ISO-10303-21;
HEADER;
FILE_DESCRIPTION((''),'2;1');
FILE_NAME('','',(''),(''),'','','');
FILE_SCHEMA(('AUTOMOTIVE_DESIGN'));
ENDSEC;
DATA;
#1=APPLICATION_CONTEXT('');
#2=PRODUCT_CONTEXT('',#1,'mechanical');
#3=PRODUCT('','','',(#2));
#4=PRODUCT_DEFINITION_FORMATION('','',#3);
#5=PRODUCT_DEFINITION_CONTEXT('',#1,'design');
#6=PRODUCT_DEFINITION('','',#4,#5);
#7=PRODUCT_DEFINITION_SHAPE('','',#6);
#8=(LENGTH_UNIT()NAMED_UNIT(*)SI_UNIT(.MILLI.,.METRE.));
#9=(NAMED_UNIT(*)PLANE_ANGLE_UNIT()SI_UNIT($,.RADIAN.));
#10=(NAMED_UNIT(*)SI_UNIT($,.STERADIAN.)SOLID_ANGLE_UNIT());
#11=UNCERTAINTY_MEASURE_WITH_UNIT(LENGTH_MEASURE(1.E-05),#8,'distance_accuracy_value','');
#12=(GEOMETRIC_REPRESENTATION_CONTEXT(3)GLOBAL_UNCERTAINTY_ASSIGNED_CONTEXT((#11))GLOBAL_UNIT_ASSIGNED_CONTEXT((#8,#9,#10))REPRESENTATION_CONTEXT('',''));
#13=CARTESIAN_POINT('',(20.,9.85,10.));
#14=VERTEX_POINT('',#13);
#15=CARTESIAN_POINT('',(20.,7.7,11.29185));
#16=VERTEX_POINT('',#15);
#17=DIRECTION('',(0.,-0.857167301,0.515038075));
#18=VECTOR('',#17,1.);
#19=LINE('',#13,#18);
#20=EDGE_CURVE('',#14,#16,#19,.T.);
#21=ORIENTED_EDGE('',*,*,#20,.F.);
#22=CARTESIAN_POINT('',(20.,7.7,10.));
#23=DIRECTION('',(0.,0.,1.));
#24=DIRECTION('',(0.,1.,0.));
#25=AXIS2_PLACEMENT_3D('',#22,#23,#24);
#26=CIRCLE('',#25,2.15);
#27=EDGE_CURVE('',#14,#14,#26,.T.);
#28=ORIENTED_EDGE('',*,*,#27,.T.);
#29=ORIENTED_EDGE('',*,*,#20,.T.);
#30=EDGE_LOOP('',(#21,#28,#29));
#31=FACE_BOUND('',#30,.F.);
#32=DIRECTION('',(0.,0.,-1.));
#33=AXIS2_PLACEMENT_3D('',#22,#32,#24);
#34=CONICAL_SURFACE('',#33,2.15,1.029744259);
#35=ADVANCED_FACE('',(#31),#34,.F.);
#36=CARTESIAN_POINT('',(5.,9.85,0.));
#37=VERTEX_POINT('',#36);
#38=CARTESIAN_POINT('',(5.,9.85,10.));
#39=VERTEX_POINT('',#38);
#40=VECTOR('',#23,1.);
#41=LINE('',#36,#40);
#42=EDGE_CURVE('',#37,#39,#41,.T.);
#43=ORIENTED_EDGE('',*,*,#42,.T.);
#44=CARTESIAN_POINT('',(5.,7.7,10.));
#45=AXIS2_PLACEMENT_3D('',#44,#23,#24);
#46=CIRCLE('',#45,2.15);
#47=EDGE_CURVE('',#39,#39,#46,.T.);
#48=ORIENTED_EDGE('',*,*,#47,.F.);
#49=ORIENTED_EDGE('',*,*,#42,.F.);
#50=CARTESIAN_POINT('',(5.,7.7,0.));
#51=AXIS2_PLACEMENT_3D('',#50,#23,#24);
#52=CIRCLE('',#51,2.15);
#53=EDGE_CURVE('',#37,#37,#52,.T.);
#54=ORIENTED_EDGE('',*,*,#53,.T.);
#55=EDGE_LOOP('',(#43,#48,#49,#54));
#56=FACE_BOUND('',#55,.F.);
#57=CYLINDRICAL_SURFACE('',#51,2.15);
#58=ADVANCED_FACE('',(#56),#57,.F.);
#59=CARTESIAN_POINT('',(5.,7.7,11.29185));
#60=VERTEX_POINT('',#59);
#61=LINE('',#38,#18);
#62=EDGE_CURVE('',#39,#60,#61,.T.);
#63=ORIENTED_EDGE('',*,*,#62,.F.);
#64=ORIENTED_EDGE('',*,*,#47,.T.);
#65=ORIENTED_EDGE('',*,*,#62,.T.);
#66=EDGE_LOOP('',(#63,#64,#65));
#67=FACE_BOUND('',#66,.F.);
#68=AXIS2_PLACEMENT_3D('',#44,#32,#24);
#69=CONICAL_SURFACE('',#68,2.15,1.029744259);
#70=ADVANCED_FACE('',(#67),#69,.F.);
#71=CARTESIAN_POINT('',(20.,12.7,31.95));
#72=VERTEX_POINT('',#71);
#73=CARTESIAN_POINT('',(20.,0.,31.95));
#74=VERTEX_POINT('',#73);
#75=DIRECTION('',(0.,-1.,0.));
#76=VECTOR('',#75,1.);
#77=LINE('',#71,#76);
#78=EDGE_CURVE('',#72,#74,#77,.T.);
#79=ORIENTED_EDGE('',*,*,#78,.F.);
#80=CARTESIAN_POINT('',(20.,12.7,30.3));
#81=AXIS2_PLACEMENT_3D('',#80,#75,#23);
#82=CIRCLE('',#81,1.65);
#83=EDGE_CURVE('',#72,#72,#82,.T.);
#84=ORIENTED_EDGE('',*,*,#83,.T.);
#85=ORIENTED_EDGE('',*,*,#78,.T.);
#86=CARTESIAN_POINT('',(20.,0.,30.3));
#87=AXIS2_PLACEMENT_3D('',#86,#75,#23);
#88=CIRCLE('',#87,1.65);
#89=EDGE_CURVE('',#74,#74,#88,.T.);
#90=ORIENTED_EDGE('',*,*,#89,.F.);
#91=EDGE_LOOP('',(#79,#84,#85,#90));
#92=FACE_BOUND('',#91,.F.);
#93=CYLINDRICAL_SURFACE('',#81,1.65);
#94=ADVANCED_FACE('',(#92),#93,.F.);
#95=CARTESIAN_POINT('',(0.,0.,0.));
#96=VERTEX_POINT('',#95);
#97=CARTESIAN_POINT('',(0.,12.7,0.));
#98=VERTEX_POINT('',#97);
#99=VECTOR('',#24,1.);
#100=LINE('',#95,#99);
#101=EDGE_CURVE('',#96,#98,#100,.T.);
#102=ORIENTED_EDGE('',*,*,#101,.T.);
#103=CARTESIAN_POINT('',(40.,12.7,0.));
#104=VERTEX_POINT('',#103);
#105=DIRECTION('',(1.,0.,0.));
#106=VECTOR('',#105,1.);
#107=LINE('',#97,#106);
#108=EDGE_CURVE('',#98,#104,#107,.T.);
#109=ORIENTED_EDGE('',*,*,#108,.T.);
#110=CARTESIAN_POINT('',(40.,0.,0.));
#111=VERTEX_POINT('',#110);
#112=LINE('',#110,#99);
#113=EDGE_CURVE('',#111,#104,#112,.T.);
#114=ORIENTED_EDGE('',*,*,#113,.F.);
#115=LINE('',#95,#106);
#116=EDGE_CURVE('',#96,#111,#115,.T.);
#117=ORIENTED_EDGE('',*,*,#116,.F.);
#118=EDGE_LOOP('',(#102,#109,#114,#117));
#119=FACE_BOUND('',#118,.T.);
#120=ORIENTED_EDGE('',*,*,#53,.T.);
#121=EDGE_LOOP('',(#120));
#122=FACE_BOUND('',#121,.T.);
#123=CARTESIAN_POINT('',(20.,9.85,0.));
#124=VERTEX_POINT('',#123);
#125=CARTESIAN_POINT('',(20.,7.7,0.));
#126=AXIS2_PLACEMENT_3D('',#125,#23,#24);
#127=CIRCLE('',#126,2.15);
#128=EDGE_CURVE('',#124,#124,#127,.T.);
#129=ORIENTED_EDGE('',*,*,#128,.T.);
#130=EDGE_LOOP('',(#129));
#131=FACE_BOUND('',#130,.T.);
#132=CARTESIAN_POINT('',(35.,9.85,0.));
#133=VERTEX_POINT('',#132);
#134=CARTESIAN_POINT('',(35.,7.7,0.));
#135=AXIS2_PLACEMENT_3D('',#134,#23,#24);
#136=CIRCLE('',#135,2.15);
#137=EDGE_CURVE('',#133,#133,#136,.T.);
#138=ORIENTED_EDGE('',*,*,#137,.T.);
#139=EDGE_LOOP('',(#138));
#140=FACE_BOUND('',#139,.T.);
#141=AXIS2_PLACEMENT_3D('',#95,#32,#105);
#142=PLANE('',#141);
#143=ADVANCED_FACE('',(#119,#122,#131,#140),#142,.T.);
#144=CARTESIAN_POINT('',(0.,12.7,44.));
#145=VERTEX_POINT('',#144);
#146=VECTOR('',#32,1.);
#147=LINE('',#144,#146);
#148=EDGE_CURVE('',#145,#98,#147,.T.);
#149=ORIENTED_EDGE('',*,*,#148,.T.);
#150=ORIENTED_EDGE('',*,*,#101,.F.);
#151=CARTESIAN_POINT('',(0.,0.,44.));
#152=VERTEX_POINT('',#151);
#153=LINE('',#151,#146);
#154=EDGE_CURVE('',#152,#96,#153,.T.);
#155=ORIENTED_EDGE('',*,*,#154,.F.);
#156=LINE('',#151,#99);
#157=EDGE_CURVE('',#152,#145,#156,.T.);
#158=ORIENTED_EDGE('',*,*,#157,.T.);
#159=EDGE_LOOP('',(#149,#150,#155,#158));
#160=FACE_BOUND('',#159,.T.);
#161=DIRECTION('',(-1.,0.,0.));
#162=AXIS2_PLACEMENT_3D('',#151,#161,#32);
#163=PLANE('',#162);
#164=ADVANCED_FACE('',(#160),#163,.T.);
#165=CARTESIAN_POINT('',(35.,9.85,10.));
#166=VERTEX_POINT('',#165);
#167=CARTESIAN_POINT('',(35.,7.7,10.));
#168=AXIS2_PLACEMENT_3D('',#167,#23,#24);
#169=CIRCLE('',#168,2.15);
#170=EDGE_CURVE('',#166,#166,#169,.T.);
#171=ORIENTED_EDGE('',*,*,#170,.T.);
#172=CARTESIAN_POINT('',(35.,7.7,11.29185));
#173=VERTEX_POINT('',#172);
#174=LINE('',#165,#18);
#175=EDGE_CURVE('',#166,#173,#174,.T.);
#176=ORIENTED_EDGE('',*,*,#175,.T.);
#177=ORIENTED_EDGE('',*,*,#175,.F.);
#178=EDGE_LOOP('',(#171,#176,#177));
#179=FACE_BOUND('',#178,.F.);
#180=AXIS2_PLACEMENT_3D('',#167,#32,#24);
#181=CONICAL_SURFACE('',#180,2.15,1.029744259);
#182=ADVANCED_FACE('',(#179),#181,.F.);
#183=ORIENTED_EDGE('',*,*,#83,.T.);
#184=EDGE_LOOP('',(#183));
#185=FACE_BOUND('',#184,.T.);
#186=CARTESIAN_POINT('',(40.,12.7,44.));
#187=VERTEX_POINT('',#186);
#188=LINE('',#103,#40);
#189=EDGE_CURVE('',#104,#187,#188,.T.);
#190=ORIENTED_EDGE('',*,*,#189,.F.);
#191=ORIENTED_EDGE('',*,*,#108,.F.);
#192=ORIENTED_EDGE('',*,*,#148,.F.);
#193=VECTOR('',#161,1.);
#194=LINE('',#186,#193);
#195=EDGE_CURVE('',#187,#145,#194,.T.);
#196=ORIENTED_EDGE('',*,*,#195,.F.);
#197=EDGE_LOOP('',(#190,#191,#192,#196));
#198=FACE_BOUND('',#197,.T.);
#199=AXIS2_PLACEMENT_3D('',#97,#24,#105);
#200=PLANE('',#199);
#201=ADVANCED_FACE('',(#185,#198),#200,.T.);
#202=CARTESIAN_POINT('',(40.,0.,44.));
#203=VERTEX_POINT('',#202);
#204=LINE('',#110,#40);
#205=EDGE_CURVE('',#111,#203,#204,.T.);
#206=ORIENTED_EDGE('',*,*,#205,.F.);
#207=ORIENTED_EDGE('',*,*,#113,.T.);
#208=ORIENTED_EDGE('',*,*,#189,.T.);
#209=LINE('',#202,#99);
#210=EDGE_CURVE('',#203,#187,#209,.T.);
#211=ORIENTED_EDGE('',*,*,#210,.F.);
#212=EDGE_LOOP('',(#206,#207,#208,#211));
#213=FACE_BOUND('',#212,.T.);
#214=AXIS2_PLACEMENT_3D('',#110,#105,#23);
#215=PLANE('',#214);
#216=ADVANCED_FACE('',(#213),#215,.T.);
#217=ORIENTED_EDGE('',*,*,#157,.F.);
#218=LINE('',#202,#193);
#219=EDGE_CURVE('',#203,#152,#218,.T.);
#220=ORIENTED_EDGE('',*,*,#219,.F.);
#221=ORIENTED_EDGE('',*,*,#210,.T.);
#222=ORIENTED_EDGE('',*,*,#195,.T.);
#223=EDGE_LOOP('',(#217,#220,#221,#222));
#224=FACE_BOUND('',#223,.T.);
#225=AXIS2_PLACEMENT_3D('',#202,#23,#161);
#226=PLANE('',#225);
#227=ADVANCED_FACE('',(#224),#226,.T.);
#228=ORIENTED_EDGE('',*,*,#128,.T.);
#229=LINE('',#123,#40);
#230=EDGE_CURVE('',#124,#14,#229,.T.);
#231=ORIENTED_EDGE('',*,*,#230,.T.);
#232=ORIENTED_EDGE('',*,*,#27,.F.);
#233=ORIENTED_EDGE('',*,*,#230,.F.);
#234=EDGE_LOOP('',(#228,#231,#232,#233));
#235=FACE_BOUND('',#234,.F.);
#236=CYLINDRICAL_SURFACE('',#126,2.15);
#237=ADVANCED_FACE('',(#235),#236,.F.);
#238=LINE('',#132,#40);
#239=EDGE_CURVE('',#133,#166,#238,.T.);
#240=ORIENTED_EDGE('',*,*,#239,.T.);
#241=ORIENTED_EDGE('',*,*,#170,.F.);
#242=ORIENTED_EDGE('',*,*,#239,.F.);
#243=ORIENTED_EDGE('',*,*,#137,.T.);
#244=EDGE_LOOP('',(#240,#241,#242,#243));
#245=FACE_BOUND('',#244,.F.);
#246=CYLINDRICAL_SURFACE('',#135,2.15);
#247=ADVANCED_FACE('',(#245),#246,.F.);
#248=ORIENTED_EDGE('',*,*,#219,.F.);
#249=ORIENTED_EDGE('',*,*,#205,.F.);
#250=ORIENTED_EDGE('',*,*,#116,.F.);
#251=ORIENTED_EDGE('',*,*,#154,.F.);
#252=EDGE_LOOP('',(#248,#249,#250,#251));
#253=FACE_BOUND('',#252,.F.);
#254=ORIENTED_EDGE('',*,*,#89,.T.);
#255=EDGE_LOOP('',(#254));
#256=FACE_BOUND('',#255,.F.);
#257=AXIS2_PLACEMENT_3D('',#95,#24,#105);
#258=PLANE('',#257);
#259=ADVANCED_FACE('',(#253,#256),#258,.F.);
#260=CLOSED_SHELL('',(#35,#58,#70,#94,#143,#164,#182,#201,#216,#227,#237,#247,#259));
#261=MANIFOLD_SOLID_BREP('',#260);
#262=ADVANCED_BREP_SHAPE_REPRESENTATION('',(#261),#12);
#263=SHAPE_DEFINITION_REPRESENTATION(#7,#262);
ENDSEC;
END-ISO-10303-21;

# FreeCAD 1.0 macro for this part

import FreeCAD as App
import Part
import Sketcher

V = App.Vector


def add_polygon(sketch, points):
    """Adds a closed chain of lines whose ends are joined by coincident constraints."""
    first, n = sketch.GeometryCount, len(points)
    for a, b in zip(points, points[1:] + points[:1]):
        sketch.addGeometry(Part.LineSegment(App.Vector(*a, 0), App.Vector(*b, 0)), False)
    for i in range(n):
        sketch.addConstraint(Sketcher.Constraint("Coincident", first + i, 2, first + (i + 1) % n, 1))

doc = App.newDocument("Part")
body = doc.addObject("PartDesign::Body", "Body")

sketch1 = body.newObject("Sketcher::SketchObject", "Sketch")
sketch1.AttachmentSupport = (doc.getObject("XZ_Plane"), [""])
sketch1.MapMode = "FlatFace"
add_polygon(sketch1, [(40, 0), (0, 0), (0, 44), (40, 44)])
sketch1.addConstraint([
    Sketcher.Constraint("Horizontal", 0),
    Sketcher.Constraint("Vertical", 1),
    Sketcher.Constraint("Horizontal", 2),
    Sketcher.Constraint("Vertical", 3),
    Sketcher.Constraint("Coincident", 0, 2, -1, 1),
    Sketcher.Constraint("DistanceX", 0, 2, 0, 1, 40.0),
    Sketcher.Constraint("DistanceY", 1, 1, 1, 2, 44.0),
])
pad1 = body.newObject("PartDesign::Pad", "Pad")
pad1.Profile = sketch1
pad1.Length = 12.7
pad1.Reversed = True

sketch2 = body.newObject("Sketcher::SketchObject", "Sketch001")
sketch2.AttachmentSupport = (doc.getObject("XZ_Plane"), [""])
sketch2.MapMode = "FlatFace"
sketch2.AttachmentOffset = App.Placement(V(0, 0, -12.7), App.Rotation())
sketch2.addGeometry(Part.Circle(V(20, 30.3, 0), V(0, 0, 1), 1.6), False)
sketch2.addConstraint([
    Sketcher.Constraint("Diameter", 0, 3.3),
    Sketcher.Constraint("DistanceX", -1, 1, 0, 3, 20.0),
    Sketcher.Constraint("DistanceY", -1, 1, 0, 3, 30.3),
])
doc.recompute()
hole = body.newObject("PartDesign::Hole", "Hole")
hole.Profile = sketch2
hole.ThreadType = "None"
hole.Diameter = 3.3
hole.DepthType = "ThroughAll"
hole.Reversed = True

sketch3 = body.newObject("Sketcher::SketchObject", "Sketch002")
sketch3.AttachmentSupport = (doc.getObject("XY_Plane"), [""])
sketch3.MapMode = "FlatFace"
sketch3.addGeometry(Part.Circle(V(35, 7.7, 0), V(0, 0, 1), 2.1), False)
sketch3.addConstraint([
    Sketcher.Constraint("Diameter", 0, 4.3),
    Sketcher.Constraint("DistanceX", -1, 1, 0, 3, 35.0),
    Sketcher.Constraint("DistanceY", -1, 1, 0, 3, 7.7),
])
doc.recompute()
hole2 = body.newObject("PartDesign::Hole", "Hole001")
hole2.Profile = sketch3
hole2.ThreadType = "None"
hole2.Diameter = 4.3
hole2.DepthType = "Dimension"
hole2.Depth = 10
hole2.DrillPoint = "Angled"
hole2.DrillPointAngle = 118
hole2.Reversed = True

sketch4 = body.newObject("Sketcher::SketchObject", "Sketch003")
sketch4.AttachmentSupport = (doc.getObject("XY_Plane"), [""])
sketch4.MapMode = "FlatFace"
sketch4.addGeometry(Part.Circle(V(5, 7.7, 0), V(0, 0, 1), 2.1), False)
sketch4.addConstraint([
    Sketcher.Constraint("Diameter", 0, 4.3),
    Sketcher.Constraint("DistanceX", -1, 1, 0, 3, 5.0),
    Sketcher.Constraint("DistanceY", -1, 1, 0, 3, 7.7),
])
doc.recompute()
hole3 = body.newObject("PartDesign::Hole", "Hole002")
hole3.Profile = sketch4
hole3.ThreadType = "None"
hole3.Diameter = 4.3
hole3.DepthType = "Dimension"
hole3.Depth = 10
hole3.DrillPoint = "Angled"
hole3.DrillPointAngle = 118
hole3.Reversed = True

sketch5 = body.newObject("Sketcher::SketchObject", "Sketch004")
sketch5.AttachmentSupport = (doc.getObject("XY_Plane"), [""])
sketch5.MapMode = "FlatFace"
sketch5.addGeometry(Part.Circle(V(20, 7.7, 0), V(0, 0, 1), 2.1), False)
sketch5.addConstraint([
    Sketcher.Constraint("Diameter", 0, 4.3),
    Sketcher.Constraint("DistanceX", -1, 1, 0, 3, 20.0),
    Sketcher.Constraint("DistanceY", -1, 1, 0, 3, 7.7),
])
doc.recompute()
hole4 = body.newObject("PartDesign::Hole", "Hole003")
hole4.Profile = sketch5
hole4.ThreadType = "None"
hole4.Diameter = 4.3
hole4.DepthType = "Dimension"
hole4.Depth = 10
hole4.DrillPoint = "Angled"
hole4.DrillPointAngle = 118
hole4.Reversed = True

doc.recompute()
